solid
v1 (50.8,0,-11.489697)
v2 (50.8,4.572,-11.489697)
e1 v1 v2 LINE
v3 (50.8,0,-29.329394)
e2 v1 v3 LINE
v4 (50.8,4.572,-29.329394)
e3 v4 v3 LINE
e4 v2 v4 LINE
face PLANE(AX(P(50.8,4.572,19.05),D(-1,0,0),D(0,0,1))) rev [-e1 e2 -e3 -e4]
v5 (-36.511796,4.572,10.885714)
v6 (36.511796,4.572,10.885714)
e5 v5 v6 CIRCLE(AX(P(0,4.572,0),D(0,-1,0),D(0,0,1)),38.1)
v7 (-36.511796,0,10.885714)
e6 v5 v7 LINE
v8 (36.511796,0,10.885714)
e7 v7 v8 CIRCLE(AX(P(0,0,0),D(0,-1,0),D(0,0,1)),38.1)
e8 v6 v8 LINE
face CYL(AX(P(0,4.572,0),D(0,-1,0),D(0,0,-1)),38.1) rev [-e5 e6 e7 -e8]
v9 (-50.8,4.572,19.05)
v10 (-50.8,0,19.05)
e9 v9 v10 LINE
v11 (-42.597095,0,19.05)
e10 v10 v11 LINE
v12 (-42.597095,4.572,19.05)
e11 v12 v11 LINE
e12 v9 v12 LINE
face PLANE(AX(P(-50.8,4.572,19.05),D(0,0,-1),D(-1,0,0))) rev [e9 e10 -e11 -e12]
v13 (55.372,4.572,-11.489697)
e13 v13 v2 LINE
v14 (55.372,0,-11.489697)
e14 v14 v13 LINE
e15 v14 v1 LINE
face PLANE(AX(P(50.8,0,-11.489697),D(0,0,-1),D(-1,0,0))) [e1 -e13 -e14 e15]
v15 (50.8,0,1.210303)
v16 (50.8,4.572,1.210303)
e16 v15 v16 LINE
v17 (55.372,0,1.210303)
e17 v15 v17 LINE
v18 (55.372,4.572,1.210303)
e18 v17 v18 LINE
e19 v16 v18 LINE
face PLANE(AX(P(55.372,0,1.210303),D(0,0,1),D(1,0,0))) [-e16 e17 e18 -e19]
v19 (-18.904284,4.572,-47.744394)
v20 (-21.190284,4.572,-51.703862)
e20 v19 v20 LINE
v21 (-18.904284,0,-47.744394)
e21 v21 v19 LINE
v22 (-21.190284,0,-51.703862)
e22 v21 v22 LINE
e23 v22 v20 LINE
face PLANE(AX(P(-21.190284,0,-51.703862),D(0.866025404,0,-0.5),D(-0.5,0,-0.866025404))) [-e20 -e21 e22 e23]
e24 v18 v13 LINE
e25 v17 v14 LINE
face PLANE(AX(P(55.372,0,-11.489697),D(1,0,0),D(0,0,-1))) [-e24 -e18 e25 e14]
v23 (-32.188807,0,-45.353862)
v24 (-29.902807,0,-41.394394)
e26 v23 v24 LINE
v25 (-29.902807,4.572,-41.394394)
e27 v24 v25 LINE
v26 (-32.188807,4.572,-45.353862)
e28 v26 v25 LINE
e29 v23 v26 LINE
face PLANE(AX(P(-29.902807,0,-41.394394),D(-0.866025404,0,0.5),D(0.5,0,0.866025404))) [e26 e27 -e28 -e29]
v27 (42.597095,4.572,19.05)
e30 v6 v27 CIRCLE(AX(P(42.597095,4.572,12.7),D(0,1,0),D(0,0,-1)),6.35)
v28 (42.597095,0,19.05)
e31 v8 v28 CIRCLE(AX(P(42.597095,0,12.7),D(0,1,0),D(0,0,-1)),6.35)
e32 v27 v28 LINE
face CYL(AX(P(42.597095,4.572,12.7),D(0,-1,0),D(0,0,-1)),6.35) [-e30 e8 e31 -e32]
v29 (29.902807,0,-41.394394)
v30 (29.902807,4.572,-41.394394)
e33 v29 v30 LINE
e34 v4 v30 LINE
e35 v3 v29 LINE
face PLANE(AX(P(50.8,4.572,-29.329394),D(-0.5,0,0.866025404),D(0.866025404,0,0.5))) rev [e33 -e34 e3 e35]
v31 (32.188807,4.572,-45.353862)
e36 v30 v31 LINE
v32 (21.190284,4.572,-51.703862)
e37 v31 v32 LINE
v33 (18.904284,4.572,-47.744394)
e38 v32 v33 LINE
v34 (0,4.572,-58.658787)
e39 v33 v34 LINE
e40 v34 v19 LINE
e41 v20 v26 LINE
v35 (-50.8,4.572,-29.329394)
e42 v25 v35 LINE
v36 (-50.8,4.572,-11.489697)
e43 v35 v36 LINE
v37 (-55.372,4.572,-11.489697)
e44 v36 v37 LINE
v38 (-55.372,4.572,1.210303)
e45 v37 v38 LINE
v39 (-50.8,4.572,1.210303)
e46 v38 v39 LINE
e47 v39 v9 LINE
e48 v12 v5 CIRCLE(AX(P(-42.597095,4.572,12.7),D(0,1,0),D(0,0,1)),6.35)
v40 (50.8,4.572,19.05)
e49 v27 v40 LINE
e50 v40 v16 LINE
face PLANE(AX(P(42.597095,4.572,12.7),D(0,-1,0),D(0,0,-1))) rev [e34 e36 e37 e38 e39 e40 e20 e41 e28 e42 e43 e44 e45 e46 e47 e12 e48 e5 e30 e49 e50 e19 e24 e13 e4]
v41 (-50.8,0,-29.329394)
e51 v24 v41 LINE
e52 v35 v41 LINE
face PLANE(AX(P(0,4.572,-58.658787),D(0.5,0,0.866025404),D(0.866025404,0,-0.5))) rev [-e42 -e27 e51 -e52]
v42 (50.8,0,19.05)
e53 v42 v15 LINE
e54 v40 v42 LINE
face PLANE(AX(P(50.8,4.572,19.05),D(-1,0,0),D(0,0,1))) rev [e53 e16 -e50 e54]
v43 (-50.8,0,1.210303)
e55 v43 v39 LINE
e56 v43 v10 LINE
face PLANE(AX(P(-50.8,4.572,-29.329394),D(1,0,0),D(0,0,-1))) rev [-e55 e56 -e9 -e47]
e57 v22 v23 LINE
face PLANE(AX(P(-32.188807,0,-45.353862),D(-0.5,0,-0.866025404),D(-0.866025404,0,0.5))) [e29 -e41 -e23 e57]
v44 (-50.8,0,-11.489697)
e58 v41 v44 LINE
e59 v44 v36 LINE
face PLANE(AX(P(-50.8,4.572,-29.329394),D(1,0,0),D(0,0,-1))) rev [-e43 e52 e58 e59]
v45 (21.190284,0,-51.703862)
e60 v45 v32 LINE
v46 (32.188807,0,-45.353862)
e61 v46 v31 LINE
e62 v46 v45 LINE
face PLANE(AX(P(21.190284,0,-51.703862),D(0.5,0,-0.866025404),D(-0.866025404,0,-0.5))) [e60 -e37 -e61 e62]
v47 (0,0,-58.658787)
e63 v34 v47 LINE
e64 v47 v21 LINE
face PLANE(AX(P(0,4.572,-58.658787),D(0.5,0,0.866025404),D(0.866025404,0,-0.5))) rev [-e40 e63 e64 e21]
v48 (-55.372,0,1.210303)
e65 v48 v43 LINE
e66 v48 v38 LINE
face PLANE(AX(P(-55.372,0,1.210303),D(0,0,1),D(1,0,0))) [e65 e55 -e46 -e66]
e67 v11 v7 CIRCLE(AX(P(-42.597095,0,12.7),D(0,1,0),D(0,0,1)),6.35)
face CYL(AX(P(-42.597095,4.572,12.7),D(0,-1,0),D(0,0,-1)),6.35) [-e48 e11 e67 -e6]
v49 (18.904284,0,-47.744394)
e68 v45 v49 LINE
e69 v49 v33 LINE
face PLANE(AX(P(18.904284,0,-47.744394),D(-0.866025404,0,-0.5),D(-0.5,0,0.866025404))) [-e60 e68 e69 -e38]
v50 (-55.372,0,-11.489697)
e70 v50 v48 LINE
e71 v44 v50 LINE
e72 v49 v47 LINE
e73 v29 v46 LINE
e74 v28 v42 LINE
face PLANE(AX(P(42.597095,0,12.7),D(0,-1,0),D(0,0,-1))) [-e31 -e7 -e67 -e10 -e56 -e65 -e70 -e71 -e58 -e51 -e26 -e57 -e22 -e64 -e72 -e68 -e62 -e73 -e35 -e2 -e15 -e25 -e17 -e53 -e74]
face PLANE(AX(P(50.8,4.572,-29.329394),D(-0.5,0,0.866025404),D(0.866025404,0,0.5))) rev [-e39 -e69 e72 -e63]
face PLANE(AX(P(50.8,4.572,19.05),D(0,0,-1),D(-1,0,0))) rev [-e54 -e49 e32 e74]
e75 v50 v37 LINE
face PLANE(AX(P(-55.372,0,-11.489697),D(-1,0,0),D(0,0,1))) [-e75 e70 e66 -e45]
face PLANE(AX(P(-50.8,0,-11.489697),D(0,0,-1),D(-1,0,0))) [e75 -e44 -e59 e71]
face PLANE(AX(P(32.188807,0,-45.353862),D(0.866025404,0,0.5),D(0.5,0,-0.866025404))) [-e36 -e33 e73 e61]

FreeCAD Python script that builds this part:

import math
import FreeCAD as App
import Part
import Sketcher

V = App.Vector
Q = App.Units.Quantity


def add_polygon(sketch, points):
    """Adds a closed chain of lines whose ends are joined by coincident constraints."""
    first, n = sketch.GeometryCount, len(points)
    for a, b in zip(points, points[1:] + points[:1]):
        sketch.addGeometry(Part.LineSegment(App.Vector(*a, 0), App.Vector(*b, 0)), False)
    for i in range(n):
        sketch.addConstraint(Sketcher.Constraint("Coincident", first + i, 2, first + (i + 1) % n, 1))

doc = App.newDocument("Part")
body = doc.addObject("PartDesign::Body", "Body")

# Sketch on XZ plane
sketch1 = body.newObject("Sketcher::SketchObject", "Sketch")
sketch1.AttachmentSupport = (doc.getObject("XZ_Plane"), [""])
sketch1.MapMode = "FlatFace"
sketch1.addGeometry([
    Part.LineSegment(V(-51, 19, 0), V(-43, 19, 0)),  # 0
    Part.ArcOfCircle(Part.Circle(V(-43, 13, 0), V(0, 0, 1), 6), math.radians(-17), math.radians(90)),  # 1
    Part.ArcOfCircle(Part.Circle(V(0, 0, 0), V(0, 0, 1), 38), math.radians(163), math.radians(377)),  # 2
    Part.ArcOfCircle(Part.Circle(V(43, 13, 0), V(0, 0, 1), 6), math.radians(90), math.radians(197)),  # 3
    Part.LineSegment(V(43, 19, 0), V(51, 19, 0)),  # 4
    Part.LineSegment(V(51, 19, 0), V(51, -29, 0)),  # 5
    Part.LineSegment(V(51, -29, 0), V(0, -59, 0)),  # 6
    Part.LineSegment(V(0, -59, 0), V(-51, -29, 0)),  # 7
    Part.LineSegment(V(-51, -29, 0), V(-51, 19, 0)),  # 8
], False)
sketch1.addConstraint([
    Sketcher.Constraint("Tangent", 0, 2, 1, 2),
    Sketcher.Constraint("Tangent", 1, 1, 2, 1),
    Sketcher.Constraint("Tangent", 2, 2, 3, 2),
    Sketcher.Constraint("Tangent", 3, 1, 4, 1),
    Sketcher.Constraint("Coincident", 4, 2, 5, 1),
    Sketcher.Constraint("Coincident", 5, 2, 6, 1),
    Sketcher.Constraint("Coincident", 6, 2, 7, 1),
    Sketcher.Constraint("Coincident", 7, 2, 8, 1),
    Sketcher.Constraint("Coincident", 8, 2, 0, 1),
    Sketcher.Constraint("Horizontal", 0),
    Sketcher.Constraint("Horizontal", 4),
    Sketcher.Constraint("Vertical", 5),
    Sketcher.Constraint("Vertical", 8),
    Sketcher.Constraint("Coincident", 2, 3, -1, 1),
    Sketcher.Constraint("Equal", 1, 3),
    Sketcher.Constraint("Symmetric", 5, 2, 7, 2, -2),
    Sketcher.Constraint("PointOnObject", 6, 2, -2),
    Sketcher.Constraint("Horizontal", 1, 3, 3, 3),
    Sketcher.Constraint("Radius", 2, Q("1.5 in")),
    Sketcher.Constraint("Radius", 1, Q("0.25 in")),
    Sketcher.Constraint("DistanceX", -1, 1, 4, 2, Q("2 in")),
    Sketcher.Constraint("Angle", 6, Q("-150 deg")),
    Sketcher.Constraint("DistanceY", -1, 1, 1, 3, Q("0.5 in")),
    Sketcher.Constraint("DistanceY", 6, 2, 2, 2, 69.544502),
])
pad1 = body.newObject("PartDesign::Pad", "Pad")
pad1.Profile = sketch1
pad1.Length = Q("0.18 in")
pad1.Reversed = True

# Sketch on XZ plane
sketch2 = body.newObject("Sketcher::SketchObject", "Sketch001")
sketch2.AttachmentSupport = (doc.getObject("XZ_Plane"), [""])
sketch2.MapMode = "FlatFace"
sketch2.AttachmentOffset = App.Placement(V(0, 0, -0.18 * 25.4), App.Rotation())
add_polygon(sketch2, [(-55.4, -11.5), (-55.4, 1.2), (-50.8, 1.2), (-50.8, -11.5)])  # lines 0-3
add_polygon(sketch2, [(-32.2, -45.4), (-29.9, -41.4), (-18.9, -47.7), (-21.2, -51.7)])  # lines 4-7
add_polygon(sketch2, [(21.2, -51.7), (18.9, -47.7), (29.9, -41.4), (32.2, -45.4)])  # lines 8-11
add_polygon(sketch2, [(50.8, -11.5), (50.8, 1.2), (55.4, 1.2), (55.4, -11.5)])  # lines 12-15
sketch2.addConstraint([
    Sketcher.Constraint("Vertical", 0),
    Sketcher.Constraint("Horizontal", 1),
    Sketcher.Constraint("Vertical", 2),
    Sketcher.Constraint("Horizontal", 3),
    Sketcher.Constraint("Vertical", 12),
    Sketcher.Constraint("Horizontal", 13),
    Sketcher.Constraint("Vertical", 14),
    Sketcher.Constraint("Horizontal", 15),
    Sketcher.Constraint("Symmetric", 5, 2, 8, 2, -2),
    Sketcher.Constraint("Symmetric", 4, 2, 9, 2, -2),
    Sketcher.Constraint("Symmetric", 7, 2, 10, 2, -2),
    Sketcher.Constraint("Symmetric", 6, 2, 11, 2, -2),
    Sketcher.Constraint("Symmetric", 1, 2, 12, 2, -2),
    Sketcher.Constraint("Symmetric", 3, 2, 14, 2, -2),
    Sketcher.Constraint("Perpendicular", 4, 5),
    Sketcher.Constraint("Perpendicular", 5, 6),
    Sketcher.Constraint("Perpendicular", 6, 7),
    Sketcher.Constraint("DistanceY", 0, 1, 0, 2, Q("0.5 in")),
    Sketcher.Constraint("DistanceX", 1, 2, -1, 1, Q("2 in")),
    Sketcher.Constraint("Angle", 4, Q("60 deg")),
    Sketcher.Constraint("Distance", 5, Q("0.5 in")),
    Sketcher.Constraint("DistanceX", 1, 1, 1, 2, Q("0.18 in")),
    Sketcher.Constraint("Distance", 4, Q("0.18 in")),
    Sketcher.Constraint("DistanceY", 6, 2, -1, 1, 51.703862),
    Sketcher.Constraint("DistanceX", 5, 2, 8, 2, 37.808569),
    Sketcher.Constraint("DistanceY", -1, 1, 0, 2, 1.210303),
])
pad2 = body.newObject("PartDesign::Pad", "Pad001")
pad2.Profile = sketch2
pad2.Length = Q("0.18 in")

doc.recompute()
